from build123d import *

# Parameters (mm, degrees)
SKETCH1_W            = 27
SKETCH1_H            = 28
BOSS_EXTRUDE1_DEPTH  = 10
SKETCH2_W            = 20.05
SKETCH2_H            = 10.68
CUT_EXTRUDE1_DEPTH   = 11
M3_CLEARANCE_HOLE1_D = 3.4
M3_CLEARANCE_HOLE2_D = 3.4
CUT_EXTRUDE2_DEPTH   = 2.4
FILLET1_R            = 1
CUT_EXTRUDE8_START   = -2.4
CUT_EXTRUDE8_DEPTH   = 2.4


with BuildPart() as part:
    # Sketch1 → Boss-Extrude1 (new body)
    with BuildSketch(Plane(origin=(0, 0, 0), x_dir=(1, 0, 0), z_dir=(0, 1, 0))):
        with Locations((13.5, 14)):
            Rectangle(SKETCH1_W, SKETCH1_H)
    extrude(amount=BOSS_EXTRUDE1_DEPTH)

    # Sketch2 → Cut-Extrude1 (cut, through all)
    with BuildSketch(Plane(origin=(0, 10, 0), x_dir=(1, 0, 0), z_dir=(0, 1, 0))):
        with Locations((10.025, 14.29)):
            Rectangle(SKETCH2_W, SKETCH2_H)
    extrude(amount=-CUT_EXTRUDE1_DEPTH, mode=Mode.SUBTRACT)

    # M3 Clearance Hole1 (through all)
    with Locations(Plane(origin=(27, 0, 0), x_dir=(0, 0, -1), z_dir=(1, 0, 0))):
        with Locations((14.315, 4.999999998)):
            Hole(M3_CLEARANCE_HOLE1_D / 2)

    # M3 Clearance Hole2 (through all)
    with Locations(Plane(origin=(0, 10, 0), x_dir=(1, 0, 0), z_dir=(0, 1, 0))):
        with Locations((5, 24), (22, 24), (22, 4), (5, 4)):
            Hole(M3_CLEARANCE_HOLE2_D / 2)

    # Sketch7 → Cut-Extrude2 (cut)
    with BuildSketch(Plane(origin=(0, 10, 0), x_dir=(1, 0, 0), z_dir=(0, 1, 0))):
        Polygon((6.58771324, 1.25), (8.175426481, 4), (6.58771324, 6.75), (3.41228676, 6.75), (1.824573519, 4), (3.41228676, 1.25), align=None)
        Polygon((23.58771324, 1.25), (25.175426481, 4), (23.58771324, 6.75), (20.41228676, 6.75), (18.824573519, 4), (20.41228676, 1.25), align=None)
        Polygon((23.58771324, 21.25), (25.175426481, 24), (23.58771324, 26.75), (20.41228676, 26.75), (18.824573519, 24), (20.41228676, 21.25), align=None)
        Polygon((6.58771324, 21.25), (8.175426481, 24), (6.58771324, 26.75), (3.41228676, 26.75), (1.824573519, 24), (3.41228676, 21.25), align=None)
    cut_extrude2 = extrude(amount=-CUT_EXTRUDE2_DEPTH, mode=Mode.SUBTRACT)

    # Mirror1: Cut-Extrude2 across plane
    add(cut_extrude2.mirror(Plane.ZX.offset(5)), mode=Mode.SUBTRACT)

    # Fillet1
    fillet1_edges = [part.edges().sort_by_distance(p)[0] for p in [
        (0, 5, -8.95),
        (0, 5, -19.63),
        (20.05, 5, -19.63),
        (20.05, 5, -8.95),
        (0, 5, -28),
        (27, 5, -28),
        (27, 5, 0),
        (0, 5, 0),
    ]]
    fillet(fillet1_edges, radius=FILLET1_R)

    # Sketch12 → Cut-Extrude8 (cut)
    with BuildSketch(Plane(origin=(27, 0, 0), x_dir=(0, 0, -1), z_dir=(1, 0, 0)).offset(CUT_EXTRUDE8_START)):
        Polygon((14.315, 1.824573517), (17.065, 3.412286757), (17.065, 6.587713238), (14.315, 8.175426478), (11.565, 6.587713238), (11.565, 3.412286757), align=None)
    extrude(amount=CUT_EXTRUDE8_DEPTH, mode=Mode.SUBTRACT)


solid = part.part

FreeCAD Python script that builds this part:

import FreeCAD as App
import Part
import Sketcher
Q = App.Units.Quantity


def edges_at(feature, points):
    """Names of the edges that pass closest to the given points."""
    edges = feature.Shape.Edges
    near = lambda p: min(range(len(edges)), key=lambda i: edges[i].distToShape(Part.Vertex(*p))[0])
    return sorted({f"Edge{near(p) + 1}" for p in points})

doc = App.newDocument("Part")
body = doc.addObject("PartDesign::Body", "Body")

# Sketch on XZ plane
sketch1 = body.newObject("Sketcher::SketchObject", "Sketch")
sketch1.AttachmentSupport = (doc.getObject("XZ_Plane"), [""])
sketch1.MapMode = "FlatFace"
sketch1.addGeometry([
    Part.LineSegment(App.Vector(0, -28, 0), App.Vector(0, 0, 0)),
    Part.LineSegment(App.Vector(0, 0, 0), App.Vector(27, 0, 0)),
    Part.LineSegment(App.Vector(27, 0, 0), App.Vector(27, -28, 0)),
    Part.LineSegment(App.Vector(27, -28, 0), App.Vector(0, -28, 0)),
], False)
sketch1.addConstraint([
    Sketcher.Constraint("Coincident", 0, 2, 1, 1),
    Sketcher.Constraint("Coincident", 1, 2, 2, 1),
    Sketcher.Constraint("Coincident", 2, 2, 3, 1),
    Sketcher.Constraint("Coincident", 3, 2, 0, 1),
    Sketcher.Constraint("Vertical", 0),
    Sketcher.Constraint("Horizontal", 1),
    Sketcher.Constraint("Vertical", 2),
    Sketcher.Constraint("Horizontal", 3),
    Sketcher.Constraint("Coincident", 0, 2, -1, 1),
    Sketcher.Constraint("DistanceX", 1, 1, 1, 2, Q("27 mm")),
    Sketcher.Constraint("DistanceY", 0, 1, 0, 2, Q("28 mm")),
])
pad1 = body.newObject("PartDesign::Pad", "Pad")
pad1.Profile = sketch1
pad1.Length = 10
pad1.Reversed = True

# Sketch on XZ plane
sketch2 = body.newObject("Sketcher::SketchObject", "Sketch001")
sketch2.AttachmentSupport = (doc.getObject("XZ_Plane"), [""])
sketch2.MapMode = "FlatFace"
sketch2.AttachmentOffset = App.Placement(App.Vector(0, 0, -10), App.Rotation())
sketch2.addGeometry([
    Part.LineSegment(App.Vector(0, -20, 0), App.Vector(0, -9, 0)),
    Part.LineSegment(App.Vector(0, -9, 0), App.Vector(20, -9, 0)),
    Part.LineSegment(App.Vector(20, -9, 0), App.Vector(20, -20, 0)),
    Part.LineSegment(App.Vector(20, -20, 0), App.Vector(0, -20, 0)),
], False)
sketch2.addConstraint([
    Sketcher.Constraint("Coincident", 0, 2, 1, 1),
    Sketcher.Constraint("Coincident", 1, 2, 2, 1),
    Sketcher.Constraint("Coincident", 2, 2, 3, 1),
    Sketcher.Constraint("Coincident", 3, 2, 0, 1),
    Sketcher.Constraint("Vertical", 0),
    Sketcher.Constraint("Horizontal", 1),
    Sketcher.Constraint("Vertical", 2),
    Sketcher.Constraint("Horizontal", 3),
    Sketcher.Constraint("PointOnObject", 0, 2, -2),
    Sketcher.Constraint("DistanceX", 1, 1, 1, 2, Q("20.05 mm")),
    Sketcher.Constraint("DistanceY", 0, 1, 0, 2, Q("10.68 mm")),
    Sketcher.Constraint("DistanceY", 0, 2, -1, 1, Q("8.95 mm")),
])
pocket1 = body.newObject("PartDesign::Pocket", "Pocket")
pocket1.Profile = sketch2
pocket1.Type = "ThroughAll"
pocket1.Reversed = True

# Sketch on YZ plane
sketch3 = body.newObject("Sketcher::SketchObject", "Sketch002")
sketch3.AttachmentSupport = (doc.getObject("YZ_Plane"), [""])
sketch3.MapMode = "FlatFace"
sketch3.AttachmentOffset = App.Placement(App.Vector(0, 0, 27), App.Rotation())
sketch3.addGeometry(Part.Circle(App.Vector(5, -14.3, 0), App.Vector(0, 0, 1), 1.7), False)
sketch3.addConstraint([
    Sketcher.Constraint("Diameter", 0, Q("3.4 mm")),
    Sketcher.Constraint("DistanceX", -1, 1, 0, 3, Q("5 mm")),
    Sketcher.Constraint("DistanceY", 0, 3, -1, 1, Q("14.315 mm")),
])
doc.recompute()
hole = body.newObject("PartDesign::Hole", "Hole")
hole.Profile = sketch3
hole.ThreadType = "None"
hole.Diameter = 3.4
hole.DepthType = "ThroughAll"

# Sketch on XZ plane
sketch4 = body.newObject("Sketcher::SketchObject", "Sketch003")
sketch4.AttachmentSupport = (doc.getObject("XZ_Plane"), [""])
sketch4.MapMode = "FlatFace"
sketch4.AttachmentOffset = App.Placement(App.Vector(0, 0, -10), App.Rotation())
sketch4.addGeometry([
    Part.Circle(App.Vector(5, -24, 0), App.Vector(0, 0, 1), 1.7),
    Part.Circle(App.Vector(22, -24, 0), App.Vector(0, 0, 1), 1.7),
    Part.Circle(App.Vector(22, -4, 0), App.Vector(0, 0, 1), 1.7),
    Part.Circle(App.Vector(5, -4, 0), App.Vector(0, 0, 1), 1.7),
], False)
sketch4.addConstraint([
    Sketcher.Constraint("Equal", 0, 1),
    Sketcher.Constraint("Equal", 1, 2),
    Sketcher.Constraint("Equal", 2, 3),
    Sketcher.Constraint("Horizontal", 0, 3, 1, 3),
    Sketcher.Constraint("Horizontal", 2, 3, 3, 3),
    Sketcher.Constraint("Vertical", 1, 3, 2, 3),
    Sketcher.Constraint("Vertical", 0, 3, 3, 3),
    Sketcher.Constraint("Diameter", 0, Q("3.4 mm")),
    Sketcher.Constraint("DistanceX", -1, 1, 0, 3, Q("5 mm")),
    Sketcher.Constraint("DistanceY", 0, 3, -1, 1, Q("24 mm")),
    Sketcher.Constraint("DistanceX", -1, 1, 1, 3, Q("22 mm")),
    Sketcher.Constraint("DistanceY", 2, 3, -1, 1, Q("4 mm")),
])
doc.recompute()
hole2 = body.newObject("PartDesign::Hole", "Hole001")
hole2.Profile = sketch4
hole2.ThreadType = "None"
hole2.Diameter = 3.4
hole2.DepthType = "ThroughAll"
hole2.Reversed = True

# Sketch on XZ plane
sketch5 = body.newObject("Sketcher::SketchObject", "Sketch004")
sketch5.AttachmentSupport = (doc.getObject("XZ_Plane"), [""])
sketch5.MapMode = "FlatFace"
sketch5.AttachmentOffset = App.Placement(App.Vector(0, 0, -10), App.Rotation())
sketch5.addGeometry([
    Part.LineSegment(App.Vector(6.6, -1.2, 0), App.Vector(8.2, -4, 0)),  # 0
    Part.LineSegment(App.Vector(8.2, -4, 0), App.Vector(6.6, -6.8, 0)),  # 1
    Part.LineSegment(App.Vector(6.6, -6.8, 0), App.Vector(3.4, -6.8, 0)),  # 2
    Part.LineSegment(App.Vector(3.4, -6.8, 0), App.Vector(1.8, -4, 0)),  # 3
    Part.LineSegment(App.Vector(1.8, -4, 0), App.Vector(3.4, -1.2, 0)),  # 4
    Part.LineSegment(App.Vector(3.4, -1.2, 0), App.Vector(6.6, -1.2, 0)),  # 5
    Part.LineSegment(App.Vector(23.6, -1.2, 0), App.Vector(25.2, -4, 0)),  # 6
    Part.LineSegment(App.Vector(25.2, -4, 0), App.Vector(23.6, -6.8, 0)),  # 7
    Part.LineSegment(App.Vector(23.6, -6.8, 0), App.Vector(20.4, -6.8, 0)),  # 8
    Part.LineSegment(App.Vector(20.4, -6.8, 0), App.Vector(18.8, -4, 0)),  # 9
    Part.LineSegment(App.Vector(18.8, -4, 0), App.Vector(20.4, -1.2, 0)),  # 10
    Part.LineSegment(App.Vector(20.4, -1.2, 0), App.Vector(23.6, -1.2, 0)),  # 11
    Part.LineSegment(App.Vector(23.6, -21.2, 0), App.Vector(25.2, -24, 0)),  # 12
    Part.LineSegment(App.Vector(25.2, -24, 0), App.Vector(23.6, -26.8, 0)),  # 13
    Part.LineSegment(App.Vector(23.6, -26.8, 0), App.Vector(20.4, -26.8, 0)),  # 14
    Part.LineSegment(App.Vector(20.4, -26.8, 0), App.Vector(18.8, -24, 0)),  # 15
    Part.LineSegment(App.Vector(18.8, -24, 0), App.Vector(20.4, -21.2, 0)),  # 16
    Part.LineSegment(App.Vector(20.4, -21.2, 0), App.Vector(23.6, -21.2, 0)),  # 17
    Part.LineSegment(App.Vector(6.6, -21.2, 0), App.Vector(8.2, -24, 0)),  # 18
    Part.LineSegment(App.Vector(8.2, -24, 0), App.Vector(6.6, -26.8, 0)),  # 19
    Part.LineSegment(App.Vector(6.6, -26.8, 0), App.Vector(3.4, -26.8, 0)),  # 20
    Part.LineSegment(App.Vector(3.4, -26.8, 0), App.Vector(1.8, -24, 0)),  # 21
    Part.LineSegment(App.Vector(1.8, -24, 0), App.Vector(3.4, -21.2, 0)),  # 22
    Part.LineSegment(App.Vector(3.4, -21.2, 0), App.Vector(6.6, -21.2, 0)),  # 23
], False)
sketch5.addConstraint([
    Sketcher.Constraint("Coincident", 0, 2, 1, 1),
    Sketcher.Constraint("Coincident", 1, 2, 2, 1),
    Sketcher.Constraint("Coincident", 2, 2, 3, 1),
    Sketcher.Constraint("Coincident", 3, 2, 4, 1),
    Sketcher.Constraint("Coincident", 4, 2, 5, 1),
    Sketcher.Constraint("Coincident", 5, 2, 0, 1),
    Sketcher.Constraint("Coincident", 6, 2, 7, 1),
    Sketcher.Constraint("Coincident", 7, 2, 8, 1),
    Sketcher.Constraint("Coincident", 8, 2, 9, 1),
    Sketcher.Constraint("Coincident", 9, 2, 10, 1),
    Sketcher.Constraint("Coincident", 10, 2, 11, 1),
    Sketcher.Constraint("Coincident", 11, 2, 6, 1),
    Sketcher.Constraint("Coincident", 12, 2, 13, 1),
    Sketcher.Constraint("Coincident", 13, 2, 14, 1),
    Sketcher.Constraint("Coincident", 14, 2, 15, 1),
    Sketcher.Constraint("Coincident", 15, 2, 16, 1),
    Sketcher.Constraint("Coincident", 16, 2, 17, 1),
    Sketcher.Constraint("Coincident", 17, 2, 12, 1),
    Sketcher.Constraint("Coincident", 18, 2, 19, 1),
    Sketcher.Constraint("Coincident", 19, 2, 20, 1),
    Sketcher.Constraint("Coincident", 20, 2, 21, 1),
    Sketcher.Constraint("Coincident", 21, 2, 22, 1),
    Sketcher.Constraint("Coincident", 22, 2, 23, 1),
    Sketcher.Constraint("Coincident", 23, 2, 18, 1),
    Sketcher.Constraint("Horizontal", 2),
    Sketcher.Constraint("Horizontal", 5),
    Sketcher.Constraint("Horizontal", 8),
    Sketcher.Constraint("Horizontal", 11),
    Sketcher.Constraint("Horizontal", 14),
    Sketcher.Constraint("Horizontal", 17),
    Sketcher.Constraint("Horizontal", 20),
    Sketcher.Constraint("Horizontal", 23),
    Sketcher.Constraint("Parallel", 0, 3),
    Sketcher.Constraint("Parallel", 1, 4),
    Sketcher.Constraint("Parallel", 3, 6),
    Sketcher.Constraint("Parallel", 4, 7),
    Sketcher.Constraint("Parallel", 6, 9),
    Sketcher.Constraint("Parallel", 7, 10),
    Sketcher.Constraint("Parallel", 9, 12),
    Sketcher.Constraint("Parallel", 10, 13),
    Sketcher.Constraint("Parallel", 12, 15),
    Sketcher.Constraint("Parallel", 13, 16),
    Sketcher.Constraint("Parallel", 15, 18),
    Sketcher.Constraint("Parallel", 16, 19),
    Sketcher.Constraint("Parallel", 18, 21),
    Sketcher.Constraint("Parallel", 19, 22),
    Sketcher.Constraint("Horizontal", 0, 2, 3, 2),
    Sketcher.Constraint("Horizontal", 3, 2, 6, 2),
    Sketcher.Constraint("Horizontal", 2, 2, 7, 2),
    Sketcher.Constraint("Horizontal", 6, 2, 9, 2),
    Sketcher.Constraint("Horizontal", 5, 2, 10, 2),
    Sketcher.Constraint("Horizontal", 12, 2, 15, 2),
    Sketcher.Constraint("Horizontal", 15, 2, 18, 2),
    Sketcher.Constraint("Horizontal", 14, 2, 19, 2),
    Sketcher.Constraint("Horizontal", 18, 2, 21, 2),
    Sketcher.Constraint("Horizontal", 17, 2, 22, 2),
    Sketcher.Constraint("Vertical", 2, 2, 4, 2),
    Sketcher.Constraint("Vertical", 1, 2, 5, 2),
    Sketcher.Constraint("Vertical", 6, 2, 12, 2),
    Sketcher.Constraint("Vertical", 11, 2, 13, 2),
    Sketcher.Constraint("Vertical", 10, 2, 14, 2),
    Sketcher.Constraint("Vertical", 14, 2, 16, 2),
    Sketcher.Constraint("Vertical", 0, 2, 18, 2),
    Sketcher.Constraint("Vertical", 4, 2, 20, 2),
    Sketcher.Constraint("Equal", 5, 8),
    Sketcher.Constraint("Angle", 0, Q("-60 deg")),
    Sketcher.Constraint("DistanceY", 0, 2, -1, 1, Q("4 mm")),
    Sketcher.Constraint("DistanceY", 12, 2, -1, 1, Q("24 mm")),
    Sketcher.Constraint("DistanceX", 0, 2, 6, 2, Q("17 mm")),
    Sketcher.Constraint("DistanceY", 2, 2, 4, 2, Q("5.5 mm")),
    Sketcher.Constraint("DistanceX", 2, 2, 2, 1, Q("3.175426 mm")),
    Sketcher.Constraint("DistanceX", -1, 1, 0, 2, Q("8.175426 mm")),
])
pocket2 = body.newObject("PartDesign::Pocket", "Pocket001")
pocket2.Profile = sketch5
pocket2.Length = 2.4
pocket2.Reversed = True
doc.recompute()

datumplane = body.newObject("PartDesign::Plane", "DatumPlane")
datumplane.AttachmentSupport = (doc.getObject("XZ_Plane"), [""])
datumplane.MapMode = "FlatFace"
datumplane.AttachmentOffset = App.Placement(App.Vector(0, 0, -5), App.Rotation())
mirrored = body.newObject("PartDesign::Mirrored", "Mirrored")
mirrored.Originals = [pocket2]
mirrored.MirrorPlane = (datumplane, [""])
body.Tip = mirrored
doc.recompute()

fillet = body.newObject("PartDesign::Fillet", "Fillet")
fillet.Base = (mirrored, edges_at(mirrored, [
    (0, 5, -8.95),
    (0, 5, -19.63),
    (20.05, 5, -19.63),
    (20.05, 5, -8.95),
    (0, 5, -28),
    (27, 5, -28),
    (27, 5, 0),
    (0, 5, 0),
]))
fillet.Radius = 1

# Sketch on YZ plane
sketch6 = body.newObject("Sketcher::SketchObject", "Sketch005")
sketch6.AttachmentSupport = (doc.getObject("YZ_Plane"), [""])
sketch6.MapMode = "FlatFace"
sketch6.AttachmentOffset = App.Placement(App.Vector(0, 0, 24.6), App.Rotation())
sketch6.addGeometry([
    Part.LineSegment(App.Vector(1.8, -14.3, 0), App.Vector(3.4, -17.1, 0)),  # 0
    Part.LineSegment(App.Vector(3.4, -17.1, 0), App.Vector(6.6, -17.1, 0)),  # 1
    Part.LineSegment(App.Vector(6.6, -17.1, 0), App.Vector(8.2, -14.3, 0)),  # 2
    Part.LineSegment(App.Vector(8.2, -14.3, 0), App.Vector(6.6, -11.6, 0)),  # 3
    Part.LineSegment(App.Vector(6.6, -11.6, 0), App.Vector(3.4, -11.6, 0)),  # 4
    Part.LineSegment(App.Vector(3.4, -11.6, 0), App.Vector(1.8, -14.3, 0)),  # 5
], False)
sketch6.addConstraint([
    Sketcher.Constraint("Coincident", 0, 2, 1, 1),
    Sketcher.Constraint("Coincident", 1, 2, 2, 1),
    Sketcher.Constraint("Coincident", 2, 2, 3, 1),
    Sketcher.Constraint("Coincident", 3, 2, 4, 1),
    Sketcher.Constraint("Coincident", 4, 2, 5, 1),
    Sketcher.Constraint("Coincident", 5, 2, 0, 1),
    Sketcher.Constraint("Horizontal", 1),
    Sketcher.Constraint("Horizontal", 4),
    Sketcher.Constraint("Parallel", 0, 3),
    Sketcher.Constraint("Parallel", 2, 5),
    Sketcher.Constraint("Horizontal", 2, 2, 5, 2),
    Sketcher.Constraint("Vertical", 1, 2, 3, 2),
    Sketcher.Constraint("Vertical", 0, 2, 4, 2),
    Sketcher.Constraint("Angle", 0, Q("-60 deg")),
    Sketcher.Constraint("DistanceY", 1, 2, 3, 2, Q("5.5 mm")),
    Sketcher.Constraint("DistanceY", 0, 2, -1, 1, Q("17.065 mm")),
    Sketcher.Constraint("DistanceX", 1, 1, 1, 2, Q("3.175426 mm")),
    Sketcher.Constraint("DistanceX", -1, 1, 0, 2, Q("3.412287 mm")),
])
pocket3 = body.newObject("PartDesign::Pocket", "Pocket002")
pocket3.Profile = sketch6
pocket3.Length = 2.4
pocket3.Reversed = True

doc.recompute()
